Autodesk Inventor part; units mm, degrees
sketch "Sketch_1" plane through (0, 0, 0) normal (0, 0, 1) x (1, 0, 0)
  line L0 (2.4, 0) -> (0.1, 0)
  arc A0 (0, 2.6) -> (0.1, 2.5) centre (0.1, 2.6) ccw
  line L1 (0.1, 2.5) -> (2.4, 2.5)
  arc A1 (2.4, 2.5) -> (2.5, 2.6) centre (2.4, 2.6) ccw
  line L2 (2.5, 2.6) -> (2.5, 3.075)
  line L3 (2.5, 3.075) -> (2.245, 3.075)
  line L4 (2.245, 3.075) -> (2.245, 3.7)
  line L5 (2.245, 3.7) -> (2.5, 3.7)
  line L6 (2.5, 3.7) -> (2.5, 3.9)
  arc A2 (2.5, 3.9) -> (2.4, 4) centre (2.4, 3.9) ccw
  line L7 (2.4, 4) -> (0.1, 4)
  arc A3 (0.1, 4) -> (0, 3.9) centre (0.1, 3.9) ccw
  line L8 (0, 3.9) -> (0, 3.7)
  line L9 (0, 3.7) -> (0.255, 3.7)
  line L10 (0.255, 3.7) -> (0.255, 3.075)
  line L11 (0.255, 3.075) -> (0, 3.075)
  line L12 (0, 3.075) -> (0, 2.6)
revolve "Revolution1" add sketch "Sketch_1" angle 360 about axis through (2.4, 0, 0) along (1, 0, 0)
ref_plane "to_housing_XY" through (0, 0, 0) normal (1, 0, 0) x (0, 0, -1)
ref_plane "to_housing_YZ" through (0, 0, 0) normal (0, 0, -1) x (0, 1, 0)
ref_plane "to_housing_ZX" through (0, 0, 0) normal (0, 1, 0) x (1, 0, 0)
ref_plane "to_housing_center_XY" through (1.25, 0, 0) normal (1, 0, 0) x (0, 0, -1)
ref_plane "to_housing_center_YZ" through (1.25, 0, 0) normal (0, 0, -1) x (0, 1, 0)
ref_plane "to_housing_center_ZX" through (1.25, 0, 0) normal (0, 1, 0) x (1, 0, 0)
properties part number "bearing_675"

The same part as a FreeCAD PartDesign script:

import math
import FreeCAD as App
import Part
import Sketcher
from FreeCAD import Vector

doc = App.newDocument("Part")
body = doc.addObject("PartDesign::Body", "Body")

sketch1 = doc.addObject("Sketcher::SketchObject", "Sketch")
body.addObject(sketch1)
sketch1.AttachmentSupport = (doc.XY_Plane, [""])
sketch1.MapMode = "FlatFace"
sketch1.addGeometry([
    Part.LineSegment(Vector(0, 3.08, 0), Vector(0, 2.6, 0)),
    Part.ArcOfCircle(Part.Circle(Vector(0.1, 2.6, 0), Vector(0, 0, 1), 0.1), math.radians(180), math.radians(270)),
    Part.LineSegment(Vector(0.1, 2.5, 0), Vector(2.4, 2.5, 0)),
    Part.ArcOfCircle(Part.Circle(Vector(2.4, 2.6, 0), Vector(0, 0, 1), 0.1), math.radians(-90), math.radians(0)),
    Part.LineSegment(Vector(2.5, 2.6, 0), Vector(2.5, 3.08, 0)),
    Part.LineSegment(Vector(2.5, 3.08, 0), Vector(2.25, 3.08, 0)),
    Part.LineSegment(Vector(2.25, 3.08, 0), Vector(2.25, 3.7, 0)),
    Part.LineSegment(Vector(2.25, 3.7, 0), Vector(2.5, 3.7, 0)),
    Part.LineSegment(Vector(2.5, 3.7, 0), Vector(2.5, 3.9, 0)),
    Part.ArcOfCircle(Part.Circle(Vector(2.4, 3.9, 0), Vector(0, 0, 1), 0.1), math.radians(0), math.radians(90)),
    Part.LineSegment(Vector(2.4, 4, 0), Vector(0.1, 4, 0)),
    Part.ArcOfCircle(Part.Circle(Vector(0.1, 3.9, 0), Vector(0, 0, 1), 0.1), math.radians(90), math.radians(180)),
    Part.LineSegment(Vector(0, 3.9, 0), Vector(0, 3.7, 0)),
    Part.LineSegment(Vector(0, 3.7, 0), Vector(0.26, 3.7, 0)),
    Part.LineSegment(Vector(0.26, 3.7, 0), Vector(0.26, 3.08, 0)),
    Part.LineSegment(Vector(0.26, 3.08, 0), Vector(0, 3.08, 0)),
], False)
sketch1.addConstraint([
    Sketcher.Constraint("Tangent", 0, 2, 1, 1),
    Sketcher.Constraint("Tangent", 1, 2, 2, 1),
    Sketcher.Constraint("Tangent", 2, 2, 3, 1),
    Sketcher.Constraint("Tangent", 3, 2, 4, 1),
    Sketcher.Constraint("Coincident", 4, 2, 5, 1),
    Sketcher.Constraint("Coincident", 5, 2, 6, 1),
    Sketcher.Constraint("Coincident", 6, 2, 7, 1),
    Sketcher.Constraint("Coincident", 7, 2, 8, 1),
    Sketcher.Constraint("Tangent", 8, 2, 9, 1),
    Sketcher.Constraint("Tangent", 9, 2, 10, 1),
    Sketcher.Constraint("Tangent", 10, 2, 11, 1),
    Sketcher.Constraint("Tangent", 11, 2, 12, 1),
    Sketcher.Constraint("Coincident", 12, 2, 13, 1),
    Sketcher.Constraint("Coincident", 13, 2, 14, 1),
    Sketcher.Constraint("Coincident", 14, 2, 15, 1),
    Sketcher.Constraint("Coincident", 15, 2, 0, 1),
    Sketcher.Constraint("Vertical", 0),
    Sketcher.Constraint("Horizontal", 2),
    Sketcher.Constraint("Vertical", 4),
    Sketcher.Constraint("Horizontal", 5),
    Sketcher.Constraint("Vertical", 6),
    Sketcher.Constraint("Horizontal", 7),
    Sketcher.Constraint("Vertical", 8),
    Sketcher.Constraint("Horizontal", 10),
    Sketcher.Constraint("Vertical", 12),
    Sketcher.Constraint("Horizontal", 13),
    Sketcher.Constraint("Vertical", 14),
    Sketcher.Constraint("Horizontal", 15),
    Sketcher.Constraint("Equal", 1, 3),
    Sketcher.Constraint("Equal", 3, 9),
    Sketcher.Constraint("Equal", 9, 11),
    Sketcher.Constraint("PointOnObject", 0, 2, -2),
    Sketcher.Constraint("PointOnObject", 11, 2, -2),
    Sketcher.Constraint("Horizontal", 7, 2, 12, 2),
    Sketcher.Constraint("Horizontal", 5, 2, 14, 2),
    Sketcher.Constraint("Vertical", 3, 3, 9, 3),
    Sketcher.Constraint("Equal", 7, 13),
    Sketcher.Constraint("Radius", 1, 0.1),
    Sketcher.Constraint("DistanceX", 2, 1, 2, 2, 2.3),
    Sketcher.Constraint("DistanceY", 8, 1, 8, 2, 0.2),
    Sketcher.Constraint("DistanceY", -1, 1, 9, 2, 4.0),
    Sketcher.Constraint("DistanceY", -1, 1, 1, 3, 2.6),
    Sketcher.Constraint("DistanceX", 5, 2, 5, 1, 0.255),
    Sketcher.Constraint("DistanceY", 0, 2, 0, 1, 0.475),
])
revolution = doc.addObject("PartDesign::Revolution", "Revolution")
body.addObject(revolution)
revolution.Profile = sketch1
revolution.ReferenceAxis = (sketch1, ["H_Axis"])
revolution.Angle = 360

doc.recompute()
